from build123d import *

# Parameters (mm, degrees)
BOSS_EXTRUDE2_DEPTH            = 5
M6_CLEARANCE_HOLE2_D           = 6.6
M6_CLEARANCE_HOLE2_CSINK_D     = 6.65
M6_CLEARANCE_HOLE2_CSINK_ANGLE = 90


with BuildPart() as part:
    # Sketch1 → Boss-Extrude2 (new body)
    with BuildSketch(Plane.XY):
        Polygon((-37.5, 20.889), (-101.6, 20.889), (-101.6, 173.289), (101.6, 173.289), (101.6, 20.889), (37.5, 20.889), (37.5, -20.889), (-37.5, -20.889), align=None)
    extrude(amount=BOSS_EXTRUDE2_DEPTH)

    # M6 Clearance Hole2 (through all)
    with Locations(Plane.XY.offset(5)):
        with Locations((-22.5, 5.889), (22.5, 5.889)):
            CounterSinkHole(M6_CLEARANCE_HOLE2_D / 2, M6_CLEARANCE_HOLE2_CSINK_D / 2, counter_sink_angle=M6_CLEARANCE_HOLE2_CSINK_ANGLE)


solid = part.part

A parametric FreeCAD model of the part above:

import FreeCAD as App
import Part
import Sketcher


def add_polygon(sketch, points):
    """Adds a closed chain of lines whose ends are joined by coincident constraints."""
    first, n = sketch.GeometryCount, len(points)
    for a, b in zip(points, points[1:] + points[:1]):
        sketch.addGeometry(Part.LineSegment(App.Vector(*a, 0), App.Vector(*b, 0)), False)
    for i in range(n):
        sketch.addConstraint(Sketcher.Constraint("Coincident", first + i, 2, first + (i + 1) % n, 1))

doc = App.newDocument("Part")
body = doc.addObject("PartDesign::Body", "Body")

# Sketch on XY plane
sketch1 = doc.addObject("Sketcher::SketchObject", "Sketch")
body.addObject(sketch1)
sketch1.AttachmentSupport = (doc.XY_Plane, [""])
sketch1.MapMode = "FlatFace"
add_polygon(sketch1, [(-102, 21), (-38, 21), (-38, -21), (38, -21), (38, 21), (102, 21), (102, 173), (-102, 173)])  # lines 0-7
sketch1.addConstraint([
    Sketcher.Constraint("Horizontal", 0),
    Sketcher.Constraint("Vertical", 1),
    Sketcher.Constraint("Horizontal", 2),
    Sketcher.Constraint("Vertical", 3),
    Sketcher.Constraint("Horizontal", 4),
    Sketcher.Constraint("Vertical", 5),
    Sketcher.Constraint("Horizontal", 6),
    Sketcher.Constraint("Vertical", 7),
    Sketcher.Constraint("Symmetric", 0, 2, 2, 2, -1, 1),
    Sketcher.Constraint("Symmetric", 4, 2, 7, 2, -2),
    Sketcher.Constraint("DistanceX", 2, 1, 2, 2, 75.0),
    Sketcher.Constraint("DistanceX", 0, 1, 0, 2, 64.1),
    Sketcher.Constraint("DistanceY", 5, 1, 5, 2, 152.4),
    Sketcher.Constraint("DistanceY", 1, 2, 1, 1, 41.778),
])
pad1 = doc.addObject("PartDesign::Pad", "Pad")
body.addObject(pad1)
pad1.Profile = sketch1
pad1.Length = 5

# Sketch on XY plane
sketch2 = doc.addObject("Sketcher::SketchObject", "Sketch001")
body.addObject(sketch2)
sketch2.AttachmentSupport = (doc.XY_Plane, [""])
sketch2.MapMode = "FlatFace"
sketch2.AttachmentOffset = App.Placement(App.Vector(0, 0, 5), App.Rotation())
sketch2.addGeometry([
    Part.Circle(App.Vector(-22.5, 5.9, 0), App.Vector(0, 0, 1), 3.3),
    Part.Circle(App.Vector(22.5, 5.9, 0), App.Vector(0, 0, 1), 3.3),
], False)
sketch2.addConstraint([
    Sketcher.Constraint("Equal", 0, 1),
    Sketcher.Constraint("Symmetric", 0, 3, 1, 3, -2),
    Sketcher.Constraint("Diameter", 0, 6.6),
    Sketcher.Constraint("DistanceX", 0, 3, 1, 3, 45.0),
    Sketcher.Constraint("DistanceY", -1, 1, 0, 3, 5.889),
])
doc.recompute()
hole = doc.addObject("PartDesign::Hole", "Hole")
body.addObject(hole)
hole.Profile = sketch2
hole.ThreadType = "None"
hole.Diameter = 6.6
hole.DepthType = "ThroughAll"
hole.HoleCutType = "Countersink"
hole.HoleCutDiameter = 6.65
hole.HoleCutCountersinkAngle = 90

doc.recompute()
